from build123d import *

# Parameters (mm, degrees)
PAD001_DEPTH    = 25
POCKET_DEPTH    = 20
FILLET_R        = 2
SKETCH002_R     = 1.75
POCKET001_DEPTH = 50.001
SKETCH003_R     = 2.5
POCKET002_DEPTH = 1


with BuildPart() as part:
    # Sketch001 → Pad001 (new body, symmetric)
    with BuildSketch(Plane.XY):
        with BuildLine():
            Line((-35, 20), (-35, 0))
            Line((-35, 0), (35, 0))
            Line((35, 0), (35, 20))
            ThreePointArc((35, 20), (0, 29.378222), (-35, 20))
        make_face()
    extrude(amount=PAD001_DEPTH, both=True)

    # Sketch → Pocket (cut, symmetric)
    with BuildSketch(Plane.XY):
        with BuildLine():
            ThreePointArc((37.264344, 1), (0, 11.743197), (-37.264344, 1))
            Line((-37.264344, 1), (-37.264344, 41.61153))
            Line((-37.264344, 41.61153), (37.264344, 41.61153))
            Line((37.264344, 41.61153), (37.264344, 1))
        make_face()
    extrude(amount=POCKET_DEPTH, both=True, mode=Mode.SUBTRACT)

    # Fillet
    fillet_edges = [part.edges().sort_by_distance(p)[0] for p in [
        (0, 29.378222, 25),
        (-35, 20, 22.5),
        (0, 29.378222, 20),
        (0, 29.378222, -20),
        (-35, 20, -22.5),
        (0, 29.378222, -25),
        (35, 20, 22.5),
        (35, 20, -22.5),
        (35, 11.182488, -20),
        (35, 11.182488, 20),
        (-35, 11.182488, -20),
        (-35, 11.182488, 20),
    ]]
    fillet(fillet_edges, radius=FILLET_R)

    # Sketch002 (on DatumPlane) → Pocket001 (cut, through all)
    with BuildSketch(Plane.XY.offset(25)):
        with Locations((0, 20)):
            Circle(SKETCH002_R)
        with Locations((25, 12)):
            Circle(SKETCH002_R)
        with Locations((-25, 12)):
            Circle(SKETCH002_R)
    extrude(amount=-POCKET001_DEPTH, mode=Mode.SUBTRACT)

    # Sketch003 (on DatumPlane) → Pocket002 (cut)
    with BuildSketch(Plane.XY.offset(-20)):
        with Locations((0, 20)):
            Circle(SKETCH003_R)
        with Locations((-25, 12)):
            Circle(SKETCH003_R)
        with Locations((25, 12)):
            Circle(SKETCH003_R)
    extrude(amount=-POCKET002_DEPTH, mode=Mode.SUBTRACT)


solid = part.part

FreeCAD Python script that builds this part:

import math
import FreeCAD as App
import Part
import Sketcher


def edges_at(feature, points):
    """Names of the edges that pass closest to the given points."""
    edges = feature.Shape.Edges
    near = lambda p: min(range(len(edges)), key=lambda i: edges[i].distToShape(Part.Vertex(*p))[0])
    return sorted({f"Edge{near(p) + 1}" for p in points})

doc = App.newDocument("Part")
body = doc.addObject("PartDesign::Body", "Body")

# Sketch on XY plane
sketch1 = body.newObject("Sketcher::SketchObject", "Sketch")
sketch1.AttachmentSupport = (doc.getObject("XY_Plane"), [""])
sketch1.MapMode = "FlatFace"
sketch1.addGeometry([
    Part.LineSegment(App.Vector(-35, 20, 0), App.Vector(-35, 0, 0)),
    Part.LineSegment(App.Vector(-35, 0, 0), App.Vector(35, 0, 0)),
    Part.LineSegment(App.Vector(35, 0, 0), App.Vector(35, 20, 0)),
    Part.ArcOfCircle(Part.Circle(App.Vector(0, -40.621776, 0), App.Vector(0, 0, 1), 69.999998), math.radians(59.999999), math.radians(120.000001)),
], False)
sketch1.addConstraint([
    Sketcher.Constraint("Coincident", 0, 2, 1, 1),
    Sketcher.Constraint("Coincident", 1, 2, 2, 1),
    Sketcher.Constraint("Coincident", 2, 2, 3, 1),
    Sketcher.Constraint("Coincident", 3, 2, 0, 1),
    Sketcher.Constraint("Vertical", 0),
    Sketcher.Constraint("Horizontal", 1),
    Sketcher.Constraint("Vertical", 2),
    Sketcher.Constraint("Symmetric", 0, 2, 1, 2, -1, 1),
    Sketcher.Constraint("PointOnObject", 3, 3, -2),
    Sketcher.Constraint("Radius", 3, 69.999998),
    Sketcher.Constraint("DistanceX", 1, 1, 1, 2, 70.0),
    Sketcher.Constraint("DistanceY", 0, 2, 0, 1, 20.0),
])
pad1 = body.newObject("PartDesign::Pad", "Pad")
pad1.Profile = sketch1
pad1.Length = 50
pad1.Midplane = True

# Sketch on XY plane
sketch2 = body.newObject("Sketcher::SketchObject", "Sketch001")
sketch2.AttachmentSupport = (doc.getObject("XY_Plane"), [""])
sketch2.MapMode = "FlatFace"
sketch2.addGeometry([
    Part.ArcOfCircle(Part.Circle(App.Vector(0, -58.256805, 0), App.Vector(0, 0, 1), 70.000002), math.radians(57.835779), math.radians(122.164221)),
    Part.LineSegment(App.Vector(37.264344, 1, 0), App.Vector(37.264344, 41.61153, 0)),
    Part.LineSegment(App.Vector(37.264344, 41.61153, 0), App.Vector(-37.264344, 41.61153, 0)),
    Part.LineSegment(App.Vector(-37.264344, 41.61153, 0), App.Vector(-37.264344, 1, 0)),
], False)
sketch2.addConstraint([
    Sketcher.Constraint("Coincident", 0, 1, 1, 1),
    Sketcher.Constraint("Coincident", 1, 2, 2, 1),
    Sketcher.Constraint("Coincident", 2, 2, 3, 1),
    Sketcher.Constraint("Coincident", 3, 2, 0, 2),
    Sketcher.Constraint("Vertical", 1),
    Sketcher.Constraint("Horizontal", 2),
    Sketcher.Constraint("Vertical", 3),
    Sketcher.Constraint("Symmetric", 0, 1, 3, 2, -2),
    Sketcher.Constraint("Radius", 0, 70.000002),
    Sketcher.Constraint("DistanceY", -1, 1, 0, 1, 1.0),
    Sketcher.Constraint("DistanceX", 2, 2, 2, 1, 74.528688),
    Sketcher.Constraint("DistanceY", 1, 1, 1, 2, 40.61153),
])
pocket1 = body.newObject("PartDesign::Pocket", "Pocket")
pocket1.Profile = sketch2
pocket1.Length = 40
pocket1.Midplane = True
doc.recompute()

fillet = body.newObject("PartDesign::Fillet", "Fillet")
fillet.Base = (pocket1, edges_at(pocket1, [
    (0, 29.378, 25),
    (-35, 20, 22.5),
    (0, 29.378, 20),
    (0, 29.378, -20),
    (-35, 20, -22.5),
    (0, 29.378, -25),
    (35, 20, 22.5),
    (35, 20, -22.5),
    (35, 11.182, -20),
    (35, 11.182, 20),
    (-35, 11.182, -20),
    (-35, 11.182, 20),
]))
fillet.Radius = 2

# Sketch on XY plane
sketch3 = body.newObject("Sketcher::SketchObject", "Sketch002")
sketch3.AttachmentSupport = (doc.getObject("XY_Plane"), [""])
sketch3.MapMode = "FlatFace"
sketch3.AttachmentOffset = App.Placement(App.Vector(0, 0, 25), App.Rotation())
sketch3.addGeometry([
    Part.Circle(App.Vector(0, 20, 0), App.Vector(0, 0, 1), 1.75),
    Part.Circle(App.Vector(25, 12, 0), App.Vector(0, 0, 1), 1.75),
    Part.Circle(App.Vector(-25, 12, 0), App.Vector(0, 0, 1), 1.75),
], False)
sketch3.addConstraint([
    Sketcher.Constraint("Equal", 0, 1),
    Sketcher.Constraint("Equal", 1, 2),
    Sketcher.Constraint("Symmetric", 1, 3, 2, 3, -2),
    Sketcher.Constraint("PointOnObject", 0, 3, -2),
    Sketcher.Constraint("Diameter", 0, 3.5),
    Sketcher.Constraint("DistanceY", -1, 1, 0, 3, 20.0),
    Sketcher.Constraint("DistanceX", -1, 1, 1, 3, 25.0),
    Sketcher.Constraint("DistanceY", -1, 1, 1, 3, 12.0),
])
pocket2 = body.newObject("PartDesign::Pocket", "Pocket001")
pocket2.Profile = sketch3
pocket2.Type = "ThroughAll"

# Sketch on XY plane
sketch4 = body.newObject("Sketcher::SketchObject", "Sketch003")
sketch4.AttachmentSupport = (doc.getObject("XY_Plane"), [""])
sketch4.MapMode = "FlatFace"
sketch4.AttachmentOffset = App.Placement(App.Vector(0, 0, -20), App.Rotation())
sketch4.addGeometry([
    Part.Circle(App.Vector(0, 20, 0), App.Vector(0, 0, 1), 2.5),
    Part.Circle(App.Vector(-25, 12, 0), App.Vector(0, 0, 1), 2.5),
    Part.Circle(App.Vector(25, 12, 0), App.Vector(0, 0, 1), 2.5),
], False)
sketch4.addConstraint([
    Sketcher.Constraint("Equal", 0, 1),
    Sketcher.Constraint("Equal", 1, 2),
    Sketcher.Constraint("Symmetric", 1, 3, 2, 3, -2),
    Sketcher.Constraint("PointOnObject", 0, 3, -2),
    Sketcher.Constraint("Diameter", 0, 5.0),
    Sketcher.Constraint("DistanceY", -1, 1, 0, 3, 20.0),
    Sketcher.Constraint("DistanceX", 1, 3, -1, 1, 25.0),
    Sketcher.Constraint("DistanceY", -1, 1, 1, 3, 12.0),
])
pocket3 = body.newObject("PartDesign::Pocket", "Pocket002")
pocket3.Profile = sketch4
pocket3.Length = 1

doc.recompute()
